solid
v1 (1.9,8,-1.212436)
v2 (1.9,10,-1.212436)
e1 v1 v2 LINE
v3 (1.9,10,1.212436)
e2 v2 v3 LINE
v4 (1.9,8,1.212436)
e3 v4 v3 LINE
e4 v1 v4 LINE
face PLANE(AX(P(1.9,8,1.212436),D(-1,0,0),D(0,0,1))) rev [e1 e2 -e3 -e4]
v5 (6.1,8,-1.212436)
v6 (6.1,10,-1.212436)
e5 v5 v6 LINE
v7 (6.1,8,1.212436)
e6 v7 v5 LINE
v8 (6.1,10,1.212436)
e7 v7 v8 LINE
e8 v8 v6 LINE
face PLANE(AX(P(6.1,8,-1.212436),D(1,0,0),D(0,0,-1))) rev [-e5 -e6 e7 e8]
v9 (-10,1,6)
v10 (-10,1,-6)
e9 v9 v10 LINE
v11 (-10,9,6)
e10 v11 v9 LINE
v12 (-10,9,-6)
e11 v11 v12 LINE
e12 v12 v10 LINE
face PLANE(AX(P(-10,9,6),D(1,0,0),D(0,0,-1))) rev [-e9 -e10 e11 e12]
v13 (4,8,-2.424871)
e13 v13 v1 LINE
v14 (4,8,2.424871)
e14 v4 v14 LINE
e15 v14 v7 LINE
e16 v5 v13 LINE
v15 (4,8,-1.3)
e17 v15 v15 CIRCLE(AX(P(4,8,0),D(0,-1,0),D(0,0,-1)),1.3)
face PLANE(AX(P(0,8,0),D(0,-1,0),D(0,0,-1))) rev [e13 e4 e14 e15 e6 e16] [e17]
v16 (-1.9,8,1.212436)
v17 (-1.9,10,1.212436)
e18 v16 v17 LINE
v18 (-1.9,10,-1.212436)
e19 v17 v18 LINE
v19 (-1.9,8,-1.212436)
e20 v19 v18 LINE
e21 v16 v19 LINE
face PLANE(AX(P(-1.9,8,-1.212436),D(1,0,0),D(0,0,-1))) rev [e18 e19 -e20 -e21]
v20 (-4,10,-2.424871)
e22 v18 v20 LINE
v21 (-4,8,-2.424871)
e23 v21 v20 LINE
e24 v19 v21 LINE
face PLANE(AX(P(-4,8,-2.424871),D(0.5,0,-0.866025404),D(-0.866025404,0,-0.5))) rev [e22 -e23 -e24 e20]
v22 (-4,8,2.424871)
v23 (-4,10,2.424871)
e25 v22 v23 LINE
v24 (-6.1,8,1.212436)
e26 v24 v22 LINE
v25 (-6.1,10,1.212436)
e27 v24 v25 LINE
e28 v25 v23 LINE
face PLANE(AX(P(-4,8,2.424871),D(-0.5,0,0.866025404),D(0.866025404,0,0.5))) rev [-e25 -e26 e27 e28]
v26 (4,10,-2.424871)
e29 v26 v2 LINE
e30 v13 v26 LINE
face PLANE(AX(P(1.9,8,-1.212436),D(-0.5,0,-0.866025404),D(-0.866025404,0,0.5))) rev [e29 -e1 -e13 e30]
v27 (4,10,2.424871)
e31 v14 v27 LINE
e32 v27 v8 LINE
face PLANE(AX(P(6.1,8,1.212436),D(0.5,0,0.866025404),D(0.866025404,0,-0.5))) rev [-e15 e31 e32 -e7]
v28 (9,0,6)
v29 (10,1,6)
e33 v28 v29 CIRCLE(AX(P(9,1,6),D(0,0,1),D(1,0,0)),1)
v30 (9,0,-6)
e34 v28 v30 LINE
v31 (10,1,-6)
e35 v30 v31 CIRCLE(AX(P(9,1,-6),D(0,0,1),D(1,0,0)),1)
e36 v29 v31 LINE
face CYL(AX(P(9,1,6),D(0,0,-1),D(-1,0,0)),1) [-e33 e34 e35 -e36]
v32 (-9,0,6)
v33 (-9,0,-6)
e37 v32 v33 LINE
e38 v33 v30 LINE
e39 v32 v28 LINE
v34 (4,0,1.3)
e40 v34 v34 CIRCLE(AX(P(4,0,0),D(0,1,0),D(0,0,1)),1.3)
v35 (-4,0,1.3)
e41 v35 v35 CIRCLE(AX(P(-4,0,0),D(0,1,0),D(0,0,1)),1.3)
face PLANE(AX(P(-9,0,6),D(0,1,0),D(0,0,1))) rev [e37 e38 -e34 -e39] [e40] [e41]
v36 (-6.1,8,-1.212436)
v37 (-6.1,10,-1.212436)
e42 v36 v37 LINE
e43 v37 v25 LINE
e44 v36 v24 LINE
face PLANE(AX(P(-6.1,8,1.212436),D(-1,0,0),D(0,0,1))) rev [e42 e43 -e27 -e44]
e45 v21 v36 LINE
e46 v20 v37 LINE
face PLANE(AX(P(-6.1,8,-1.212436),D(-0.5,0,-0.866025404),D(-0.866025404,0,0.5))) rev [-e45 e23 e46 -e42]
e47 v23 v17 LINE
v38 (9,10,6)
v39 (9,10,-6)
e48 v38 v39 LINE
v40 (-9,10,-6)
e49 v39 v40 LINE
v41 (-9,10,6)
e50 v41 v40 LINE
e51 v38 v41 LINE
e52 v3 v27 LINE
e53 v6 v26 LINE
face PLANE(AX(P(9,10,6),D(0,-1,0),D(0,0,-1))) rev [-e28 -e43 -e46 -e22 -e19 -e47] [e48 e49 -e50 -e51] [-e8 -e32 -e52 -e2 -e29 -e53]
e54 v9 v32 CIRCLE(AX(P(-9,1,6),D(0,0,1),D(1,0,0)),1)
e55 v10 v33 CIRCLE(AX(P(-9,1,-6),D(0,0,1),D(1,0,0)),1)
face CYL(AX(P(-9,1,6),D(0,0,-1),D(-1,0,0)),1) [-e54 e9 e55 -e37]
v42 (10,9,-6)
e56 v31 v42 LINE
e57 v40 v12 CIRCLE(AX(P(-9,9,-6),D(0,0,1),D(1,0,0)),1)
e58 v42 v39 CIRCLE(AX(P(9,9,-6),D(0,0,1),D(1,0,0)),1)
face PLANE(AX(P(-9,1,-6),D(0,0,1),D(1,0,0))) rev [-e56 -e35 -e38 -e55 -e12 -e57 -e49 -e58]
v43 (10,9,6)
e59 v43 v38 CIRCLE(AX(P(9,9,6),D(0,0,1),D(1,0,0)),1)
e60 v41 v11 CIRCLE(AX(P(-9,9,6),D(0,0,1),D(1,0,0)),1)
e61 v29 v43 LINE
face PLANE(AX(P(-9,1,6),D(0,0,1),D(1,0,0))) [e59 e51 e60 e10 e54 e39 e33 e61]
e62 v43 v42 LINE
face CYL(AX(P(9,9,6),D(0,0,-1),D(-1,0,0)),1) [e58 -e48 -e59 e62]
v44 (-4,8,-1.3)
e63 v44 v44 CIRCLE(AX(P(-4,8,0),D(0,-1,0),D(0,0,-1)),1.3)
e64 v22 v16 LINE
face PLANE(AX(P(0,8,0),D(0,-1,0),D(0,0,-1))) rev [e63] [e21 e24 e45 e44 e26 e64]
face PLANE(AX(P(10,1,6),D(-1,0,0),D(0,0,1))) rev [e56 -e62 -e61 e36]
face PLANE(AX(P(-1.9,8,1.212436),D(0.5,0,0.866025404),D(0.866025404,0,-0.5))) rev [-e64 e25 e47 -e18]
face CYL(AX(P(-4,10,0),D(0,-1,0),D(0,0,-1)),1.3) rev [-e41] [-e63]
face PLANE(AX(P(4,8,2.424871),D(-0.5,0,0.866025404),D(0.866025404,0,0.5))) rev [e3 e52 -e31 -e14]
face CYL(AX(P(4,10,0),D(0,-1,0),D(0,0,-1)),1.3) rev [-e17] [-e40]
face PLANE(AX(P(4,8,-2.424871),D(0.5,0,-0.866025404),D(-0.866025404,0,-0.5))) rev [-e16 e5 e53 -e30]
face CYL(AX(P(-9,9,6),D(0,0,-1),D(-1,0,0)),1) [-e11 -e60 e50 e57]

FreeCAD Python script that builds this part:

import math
import FreeCAD as App
import Part
import Sketcher

V = App.Vector
Q = App.Units.Quantity

doc = App.newDocument("Part")
body = doc.addObject("PartDesign::Body", "Body")

sketch1 = doc.addObject("Sketcher::SketchObject", "Sketch")
body.addObject(sketch1)
sketch1.AttachmentSupport = (doc.XY_Plane, [""])
sketch1.MapMode = "FlatFace"
sketch1.addGeometry([
    Part.LineSegment(V(-9, 0, 0), V(9, 0, 0)),
    Part.ArcOfCircle(Part.Circle(V(9, 1, 0), V(0, 0, 1), 1), math.radians(-90), math.radians(0)),
    Part.LineSegment(V(10, 1, 0), V(10, 9, 0)),
    Part.ArcOfCircle(Part.Circle(V(9, 9, 0), V(0, 0, 1), 1), math.radians(0), math.radians(90)),
    Part.LineSegment(V(9, 10, 0), V(-9, 10, 0)),
    Part.ArcOfCircle(Part.Circle(V(-9, 9, 0), V(0, 0, 1), 1), math.radians(90), math.radians(180)),
    Part.LineSegment(V(-10, 9, 0), V(-10, 1, 0)),
    Part.ArcOfCircle(Part.Circle(V(-9, 1, 0), V(0, 0, 1), 1), math.radians(-180), math.radians(-90)),
], False)
sketch1.addConstraint([
    Sketcher.Constraint("Tangent", 0, 2, 1, 1),
    Sketcher.Constraint("Tangent", 1, 2, 2, 1),
    Sketcher.Constraint("Tangent", 2, 2, 3, 1),
    Sketcher.Constraint("Tangent", 3, 2, 4, 1),
    Sketcher.Constraint("Tangent", 4, 2, 5, 1),
    Sketcher.Constraint("Tangent", 5, 2, 6, 1),
    Sketcher.Constraint("Tangent", 6, 2, 7, 1),
    Sketcher.Constraint("Tangent", 7, 2, 0, 1),
    Sketcher.Constraint("Horizontal", 0),
    Sketcher.Constraint("Vertical", 2),
    Sketcher.Constraint("Horizontal", 4),
    Sketcher.Constraint("Vertical", 6),
    Sketcher.Constraint("Equal", 1, 3),
    Sketcher.Constraint("Equal", 3, 5),
    Sketcher.Constraint("Equal", 5, 7),
    Sketcher.Constraint("Symmetric", 0, 2, 7, 2, -1, 1),
    Sketcher.Constraint("Radius", 1, 1.0),
    Sketcher.Constraint("DistanceX", 0, 1, 0, 2, 18.0),
    Sketcher.Constraint("DistanceY", 2, 1, 2, 2, 8.0),
])
pad1 = doc.addObject("PartDesign::Pad", "Pad")
body.addObject(pad1)
pad1.Profile = sketch1
pad1.Length = 12
pad1.Midplane = True

sketch2 = doc.addObject("Sketcher::SketchObject", "Sketch001")
body.addObject(sketch2)
sketch2.AttachmentSupport = (doc.XZ_Plane, [""])
sketch2.MapMode = "FlatFace"
sketch2.addGeometry([
    Part.Circle(V(4, 0, 0), V(0, 0, 1), 1.3),
    Part.Circle(V(-4, 0, 0), V(0, 0, 1), 1.3),
], False)
sketch2.addConstraint([
    Sketcher.Constraint("Equal", 0, 1),
    Sketcher.Constraint("Symmetric", 0, 3, 1, 3, -1, 1),
    Sketcher.Constraint("PointOnObject", 0, 3, -1),
    Sketcher.Constraint("Diameter", 0, 2.6),
    Sketcher.Constraint("DistanceX", -1, 1, 0, 3, 4.0),
])
pocket1 = doc.addObject("PartDesign::Pocket", "Pocket")
body.addObject(pocket1)
pocket1.Profile = sketch2
pocket1.Length = 10

sketch3 = doc.addObject("Sketcher::SketchObject", "Sketch002")
body.addObject(sketch3)
sketch3.AttachmentSupport = (doc.XZ_Plane, [""])
sketch3.MapMode = "FlatFace"
sketch3.AttachmentOffset = App.Placement(V(0, 0, -10), App.Rotation())
sketch3.addGeometry([
    Part.LineSegment(V(4, 2.4, 0), V(6.1, 1.2, 0)),
    Part.LineSegment(V(6.1, 1.2, 0), V(6.1, -1.2, 0)),
    Part.LineSegment(V(6.1, -1.2, 0), V(4, -2.4, 0)),
    Part.LineSegment(V(4, -2.4, 0), V(1.9, -1.2, 0)),
    Part.LineSegment(V(1.9, -1.2, 0), V(1.9, 1.2, 0)),
    Part.LineSegment(V(1.9, 1.2, 0), V(4, 2.4, 0)),
    Part.LineSegment(V(-4, 2.4, 0), V(-1.9, 1.2, 0)),
    Part.LineSegment(V(-1.9, 1.2, 0), V(-1.9, -1.2, 0)),
    Part.LineSegment(V(-1.9, -1.2, 0), V(-4, -2.4, 0)),
    Part.LineSegment(V(-4, -2.4, 0), V(-6.1, -1.2, 0)),
    Part.LineSegment(V(-6.1, -1.2, 0), V(-6.1, 1.2, 0)),
    Part.LineSegment(V(-6.1, 1.2, 0), V(-4, 2.4, 0)),
], False)
sketch3.addConstraint([
    Sketcher.Constraint("Coincident", 0, 2, 1, 1),
    Sketcher.Constraint("Coincident", 1, 2, 2, 1),
    Sketcher.Constraint("Coincident", 2, 2, 3, 1),
    Sketcher.Constraint("Coincident", 3, 2, 4, 1),
    Sketcher.Constraint("Coincident", 4, 2, 5, 1),
    Sketcher.Constraint("Coincident", 5, 2, 0, 1),
    Sketcher.Constraint("Coincident", 6, 2, 7, 1),
    Sketcher.Constraint("Coincident", 7, 2, 8, 1),
    Sketcher.Constraint("Coincident", 8, 2, 9, 1),
    Sketcher.Constraint("Coincident", 9, 2, 10, 1),
    Sketcher.Constraint("Coincident", 10, 2, 11, 1),
    Sketcher.Constraint("Coincident", 11, 2, 6, 1),
    Sketcher.Constraint("Vertical", 1),
    Sketcher.Constraint("Vertical", 4),
    Sketcher.Constraint("Vertical", 7),
    Sketcher.Constraint("Vertical", 10),
    Sketcher.Constraint("Symmetric", 3, 2, 6, 2, -1, 1),
    Sketcher.Constraint("Symmetric", 5, 2, 8, 2, -1, 1),
    Sketcher.Constraint("Symmetric", 0, 2, 9, 2, -1, 1),
    Sketcher.Constraint("Symmetric", 2, 2, 11, 2, -1, 1),
    Sketcher.Constraint("Symmetric", 2, 2, 8, 2, -2),
    Sketcher.Constraint("Parallel", 0, 3),
    Sketcher.Constraint("Parallel", 2, 5),
    Sketcher.Constraint("Parallel", 5, 8),
    Sketcher.Constraint("Parallel", 8, 11),
    Sketcher.Constraint("Horizontal", 1, 2, 3, 2),
    Sketcher.Constraint("Horizontal", 0, 2, 4, 2),
    Sketcher.Constraint("Angle", 0, Q("-30 deg")),
    Sketcher.Constraint("DistanceX", -1, 1, 2, 2, 4.0),
    Sketcher.Constraint("DistanceX", -1, 1, 0, 2, 6.1),
    Sketcher.Constraint("DistanceY", 1, 2, 1, 1, 2.424871),
])
pocket2 = doc.addObject("PartDesign::Pocket", "Pocket001")
body.addObject(pocket2)
pocket2.Profile = sketch3
pocket2.Length = 2
pocket2.Reversed = True

doc.recompute()
